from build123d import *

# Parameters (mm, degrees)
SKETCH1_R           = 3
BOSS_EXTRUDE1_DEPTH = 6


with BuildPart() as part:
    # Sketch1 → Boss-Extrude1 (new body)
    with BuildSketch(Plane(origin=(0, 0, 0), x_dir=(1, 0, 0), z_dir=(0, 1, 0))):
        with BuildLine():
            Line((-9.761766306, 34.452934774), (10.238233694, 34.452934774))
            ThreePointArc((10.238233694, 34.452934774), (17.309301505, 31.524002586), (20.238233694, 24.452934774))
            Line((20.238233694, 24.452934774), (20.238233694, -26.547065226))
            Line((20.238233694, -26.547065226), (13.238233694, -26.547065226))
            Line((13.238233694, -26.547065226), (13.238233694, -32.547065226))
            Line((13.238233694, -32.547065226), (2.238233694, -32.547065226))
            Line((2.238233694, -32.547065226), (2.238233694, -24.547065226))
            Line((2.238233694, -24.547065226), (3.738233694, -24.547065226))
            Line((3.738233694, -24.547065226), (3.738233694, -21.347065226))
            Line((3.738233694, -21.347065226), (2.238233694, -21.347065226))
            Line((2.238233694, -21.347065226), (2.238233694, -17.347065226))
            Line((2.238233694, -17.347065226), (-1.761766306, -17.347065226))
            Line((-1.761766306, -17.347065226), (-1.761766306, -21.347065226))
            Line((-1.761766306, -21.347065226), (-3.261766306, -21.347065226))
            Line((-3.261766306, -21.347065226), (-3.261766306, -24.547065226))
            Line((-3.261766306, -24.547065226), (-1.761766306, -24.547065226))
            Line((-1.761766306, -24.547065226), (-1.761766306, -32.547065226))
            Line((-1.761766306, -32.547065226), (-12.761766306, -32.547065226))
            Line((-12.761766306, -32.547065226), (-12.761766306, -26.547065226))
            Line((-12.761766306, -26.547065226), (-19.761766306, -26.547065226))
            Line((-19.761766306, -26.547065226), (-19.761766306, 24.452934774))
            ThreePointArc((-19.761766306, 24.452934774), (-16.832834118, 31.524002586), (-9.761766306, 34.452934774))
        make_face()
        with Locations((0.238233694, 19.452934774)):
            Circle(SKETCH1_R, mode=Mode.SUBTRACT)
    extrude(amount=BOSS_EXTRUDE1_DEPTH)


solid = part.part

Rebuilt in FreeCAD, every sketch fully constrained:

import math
import FreeCAD as App
import Part
import Sketcher

V = App.Vector

doc = App.newDocument("Part")
params = doc.addObject("Spreadsheet::Sheet", "Params")
for row, (alias, value) in enumerate([
    ("sketch1_diameter", "6 mm"),
    ("sketch1_radius", "10 mm"),
    ("sketch1_width", "20 mm"),
    ("sketch1_width2", "7 mm"),
    ("sketch1_width3", "11 mm"),
    ("pad1_length", "6 mm"),
], start=1):
    params.set(f"A{row}", alias)
    params.set(f"B{row}", "=" + value)
    params.setAlias(f"B{row}", alias)

body = doc.addObject("PartDesign::Body", "Body")

# Sketch on XZ plane
sketch1 = body.newObject("Sketcher::SketchObject", "Sketch")
sketch1.AttachmentSupport = (doc.getObject("XZ_Plane"), [""])
sketch1.MapMode = "FlatFace"
sketch1.addGeometry([
    Part.LineSegment(V(10.2, -34.5, 0), V(-9.8, -34.5, 0)),  # 0
    Part.ArcOfCircle(Part.Circle(V(-9.8, -24.5, 0), V(0, 0, 1), 10), math.radians(180), math.radians(270)),  # 1
    Part.LineSegment(V(-19.8, -24.5, 0), V(-19.8, 26.5, 0)),  # 2
    Part.LineSegment(V(-19.8, 26.5, 0), V(-12.8, 26.5, 0)),  # 3
    Part.LineSegment(V(-12.8, 26.5, 0), V(-12.8, 32.5, 0)),  # 4
    Part.LineSegment(V(-12.8, 32.5, 0), V(-1.8, 32.5, 0)),  # 5
    Part.LineSegment(V(-1.8, 32.5, 0), V(-1.8, 24.5, 0)),  # 6
    Part.LineSegment(V(-1.8, 24.5, 0), V(-3.3, 24.5, 0)),  # 7
    Part.LineSegment(V(-3.3, 24.5, 0), V(-3.3, 21.3, 0)),  # 8
    Part.LineSegment(V(-3.3, 21.3, 0), V(-1.8, 21.3, 0)),  # 9
    Part.LineSegment(V(-1.8, 21.3, 0), V(-1.8, 17.3, 0)),  # 10
    Part.LineSegment(V(-1.8, 17.3, 0), V(2.2, 17.3, 0)),  # 11
    Part.LineSegment(V(2.2, 17.3, 0), V(2.2, 21.3, 0)),  # 12
    Part.LineSegment(V(2.2, 21.3, 0), V(3.7, 21.3, 0)),  # 13
    Part.LineSegment(V(3.7, 21.3, 0), V(3.7, 24.5, 0)),  # 14
    Part.LineSegment(V(3.7, 24.5, 0), V(2.2, 24.5, 0)),  # 15
    Part.LineSegment(V(2.2, 24.5, 0), V(2.2, 32.5, 0)),  # 16
    Part.LineSegment(V(2.2, 32.5, 0), V(13.2, 32.5, 0)),  # 17
    Part.LineSegment(V(13.2, 32.5, 0), V(13.2, 26.5, 0)),  # 18
    Part.LineSegment(V(13.2, 26.5, 0), V(20.2, 26.5, 0)),  # 19
    Part.LineSegment(V(20.2, 26.5, 0), V(20.2, -24.5, 0)),  # 20
    Part.ArcOfCircle(Part.Circle(V(10.2, -24.5, 0), V(0, 0, 1), 10), math.radians(-90), math.radians(0)),  # 21
    Part.Circle(V(0.2, -19.5, 0), V(0, 0, 1), 3),  # 22
], False)
sketch1.addConstraint([
    Sketcher.Constraint("Tangent", 0, 2, 1, 2),
    Sketcher.Constraint("Tangent", 1, 1, 2, 1),
    Sketcher.Constraint("Coincident", 2, 2, 3, 1),
    Sketcher.Constraint("Coincident", 3, 2, 4, 1),
    Sketcher.Constraint("Coincident", 4, 2, 5, 1),
    Sketcher.Constraint("Coincident", 5, 2, 6, 1),
    Sketcher.Constraint("Coincident", 6, 2, 7, 1),
    Sketcher.Constraint("Coincident", 7, 2, 8, 1),
    Sketcher.Constraint("Coincident", 8, 2, 9, 1),
    Sketcher.Constraint("Coincident", 9, 2, 10, 1),
    Sketcher.Constraint("Coincident", 10, 2, 11, 1),
    Sketcher.Constraint("Coincident", 11, 2, 12, 1),
    Sketcher.Constraint("Coincident", 12, 2, 13, 1),
    Sketcher.Constraint("Coincident", 13, 2, 14, 1),
    Sketcher.Constraint("Coincident", 14, 2, 15, 1),
    Sketcher.Constraint("Coincident", 15, 2, 16, 1),
    Sketcher.Constraint("Coincident", 16, 2, 17, 1),
    Sketcher.Constraint("Coincident", 17, 2, 18, 1),
    Sketcher.Constraint("Coincident", 18, 2, 19, 1),
    Sketcher.Constraint("Coincident", 19, 2, 20, 1),
    Sketcher.Constraint("Tangent", 20, 2, 21, 2),
    Sketcher.Constraint("Tangent", 21, 1, 0, 1),
    Sketcher.Constraint("Horizontal", 0),
    Sketcher.Constraint("Vertical", 2),
    Sketcher.Constraint("Horizontal", 3),
    Sketcher.Constraint("Vertical", 4),
    Sketcher.Constraint("Horizontal", 5),
    Sketcher.Constraint("Vertical", 6),
    Sketcher.Constraint("Horizontal", 7),
    Sketcher.Constraint("Vertical", 8),
    Sketcher.Constraint("Horizontal", 9),
    Sketcher.Constraint("Vertical", 10),
    Sketcher.Constraint("Horizontal", 11),
    Sketcher.Constraint("Vertical", 12),
    Sketcher.Constraint("Horizontal", 13),
    Sketcher.Constraint("Vertical", 14),
    Sketcher.Constraint("Horizontal", 15),
    Sketcher.Constraint("Vertical", 16),
    Sketcher.Constraint("Horizontal", 17),
    Sketcher.Constraint("Vertical", 18),
    Sketcher.Constraint("Horizontal", 19),
    Sketcher.Constraint("Vertical", 20),
    Sketcher.Constraint("Equal", 1, 21),
    Sketcher.Constraint("Horizontal", 9, 2, 12, 2),
    Sketcher.Constraint("Horizontal", 7, 2, 14, 2),
    Sketcher.Constraint("Horizontal", 5, 2, 16, 2),
    Sketcher.Constraint("Horizontal", 3, 2, 18, 2),
    Sketcher.Constraint("Vertical", 6, 2, 9, 2),
    Sketcher.Constraint("Vertical", 12, 2, 15, 2),
    Sketcher.Constraint("Equal", 9, 13),
    Sketcher.Constraint("Equal", 5, 17),
    Sketcher.Constraint("Equal", 3, 19),
    Sketcher.Constraint("Equal", 11, 10),
    Sketcher.Constraint("Diameter", 22, 6.0),
    Sketcher.Constraint("Radius", 1, 10.0),
    Sketcher.Constraint("DistanceX", 0, 2, 0, 1, 20.0),
    Sketcher.Constraint("DistanceX", 3, 1, 3, 2, 7.0),
    Sketcher.Constraint("DistanceX", 5, 1, 5, 2, 11.0),
    Sketcher.Constraint("DistanceY", 2, 1, 2, 2, 51.0),
    Sketcher.Constraint("DistanceY", 4, 1, 4, 2, 6.0),
    Sketcher.Constraint("DistanceY", 6, 2, 6, 1, 8.0),
    Sketcher.Constraint("DistanceX", 7, 2, 7, 1, 1.5),
    Sketcher.Constraint("DistanceY", 8, 2, 8, 1, 3.2),
    Sketcher.Constraint("DistanceX", 22, 3, 21, 3, 10.0),
    Sketcher.Constraint("DistanceY", 21, 3, 22, 3, 5.0),
    Sketcher.Constraint("DistanceX", 1, 3, -1, 1, 9.761766),
    Sketcher.Constraint("DistanceY", 1, 3, -1, 1, 24.452935),
])
sketch1.setExpression("Constraints[53]", "Params.sketch1_diameter")
sketch1.setExpression("Constraints[54]", "Params.sketch1_radius")
sketch1.setExpression("Constraints[55]", "Params.sketch1_width")
sketch1.setExpression("Constraints[56]", "Params.sketch1_width2")
sketch1.setExpression("Constraints[57]", "Params.sketch1_width3")
pad1 = body.newObject("PartDesign::Pad", "Pad")
pad1.Profile = sketch1
pad1.setExpression("Length", "Params.pad1_length")
pad1.Reversed = True

doc.recompute()
